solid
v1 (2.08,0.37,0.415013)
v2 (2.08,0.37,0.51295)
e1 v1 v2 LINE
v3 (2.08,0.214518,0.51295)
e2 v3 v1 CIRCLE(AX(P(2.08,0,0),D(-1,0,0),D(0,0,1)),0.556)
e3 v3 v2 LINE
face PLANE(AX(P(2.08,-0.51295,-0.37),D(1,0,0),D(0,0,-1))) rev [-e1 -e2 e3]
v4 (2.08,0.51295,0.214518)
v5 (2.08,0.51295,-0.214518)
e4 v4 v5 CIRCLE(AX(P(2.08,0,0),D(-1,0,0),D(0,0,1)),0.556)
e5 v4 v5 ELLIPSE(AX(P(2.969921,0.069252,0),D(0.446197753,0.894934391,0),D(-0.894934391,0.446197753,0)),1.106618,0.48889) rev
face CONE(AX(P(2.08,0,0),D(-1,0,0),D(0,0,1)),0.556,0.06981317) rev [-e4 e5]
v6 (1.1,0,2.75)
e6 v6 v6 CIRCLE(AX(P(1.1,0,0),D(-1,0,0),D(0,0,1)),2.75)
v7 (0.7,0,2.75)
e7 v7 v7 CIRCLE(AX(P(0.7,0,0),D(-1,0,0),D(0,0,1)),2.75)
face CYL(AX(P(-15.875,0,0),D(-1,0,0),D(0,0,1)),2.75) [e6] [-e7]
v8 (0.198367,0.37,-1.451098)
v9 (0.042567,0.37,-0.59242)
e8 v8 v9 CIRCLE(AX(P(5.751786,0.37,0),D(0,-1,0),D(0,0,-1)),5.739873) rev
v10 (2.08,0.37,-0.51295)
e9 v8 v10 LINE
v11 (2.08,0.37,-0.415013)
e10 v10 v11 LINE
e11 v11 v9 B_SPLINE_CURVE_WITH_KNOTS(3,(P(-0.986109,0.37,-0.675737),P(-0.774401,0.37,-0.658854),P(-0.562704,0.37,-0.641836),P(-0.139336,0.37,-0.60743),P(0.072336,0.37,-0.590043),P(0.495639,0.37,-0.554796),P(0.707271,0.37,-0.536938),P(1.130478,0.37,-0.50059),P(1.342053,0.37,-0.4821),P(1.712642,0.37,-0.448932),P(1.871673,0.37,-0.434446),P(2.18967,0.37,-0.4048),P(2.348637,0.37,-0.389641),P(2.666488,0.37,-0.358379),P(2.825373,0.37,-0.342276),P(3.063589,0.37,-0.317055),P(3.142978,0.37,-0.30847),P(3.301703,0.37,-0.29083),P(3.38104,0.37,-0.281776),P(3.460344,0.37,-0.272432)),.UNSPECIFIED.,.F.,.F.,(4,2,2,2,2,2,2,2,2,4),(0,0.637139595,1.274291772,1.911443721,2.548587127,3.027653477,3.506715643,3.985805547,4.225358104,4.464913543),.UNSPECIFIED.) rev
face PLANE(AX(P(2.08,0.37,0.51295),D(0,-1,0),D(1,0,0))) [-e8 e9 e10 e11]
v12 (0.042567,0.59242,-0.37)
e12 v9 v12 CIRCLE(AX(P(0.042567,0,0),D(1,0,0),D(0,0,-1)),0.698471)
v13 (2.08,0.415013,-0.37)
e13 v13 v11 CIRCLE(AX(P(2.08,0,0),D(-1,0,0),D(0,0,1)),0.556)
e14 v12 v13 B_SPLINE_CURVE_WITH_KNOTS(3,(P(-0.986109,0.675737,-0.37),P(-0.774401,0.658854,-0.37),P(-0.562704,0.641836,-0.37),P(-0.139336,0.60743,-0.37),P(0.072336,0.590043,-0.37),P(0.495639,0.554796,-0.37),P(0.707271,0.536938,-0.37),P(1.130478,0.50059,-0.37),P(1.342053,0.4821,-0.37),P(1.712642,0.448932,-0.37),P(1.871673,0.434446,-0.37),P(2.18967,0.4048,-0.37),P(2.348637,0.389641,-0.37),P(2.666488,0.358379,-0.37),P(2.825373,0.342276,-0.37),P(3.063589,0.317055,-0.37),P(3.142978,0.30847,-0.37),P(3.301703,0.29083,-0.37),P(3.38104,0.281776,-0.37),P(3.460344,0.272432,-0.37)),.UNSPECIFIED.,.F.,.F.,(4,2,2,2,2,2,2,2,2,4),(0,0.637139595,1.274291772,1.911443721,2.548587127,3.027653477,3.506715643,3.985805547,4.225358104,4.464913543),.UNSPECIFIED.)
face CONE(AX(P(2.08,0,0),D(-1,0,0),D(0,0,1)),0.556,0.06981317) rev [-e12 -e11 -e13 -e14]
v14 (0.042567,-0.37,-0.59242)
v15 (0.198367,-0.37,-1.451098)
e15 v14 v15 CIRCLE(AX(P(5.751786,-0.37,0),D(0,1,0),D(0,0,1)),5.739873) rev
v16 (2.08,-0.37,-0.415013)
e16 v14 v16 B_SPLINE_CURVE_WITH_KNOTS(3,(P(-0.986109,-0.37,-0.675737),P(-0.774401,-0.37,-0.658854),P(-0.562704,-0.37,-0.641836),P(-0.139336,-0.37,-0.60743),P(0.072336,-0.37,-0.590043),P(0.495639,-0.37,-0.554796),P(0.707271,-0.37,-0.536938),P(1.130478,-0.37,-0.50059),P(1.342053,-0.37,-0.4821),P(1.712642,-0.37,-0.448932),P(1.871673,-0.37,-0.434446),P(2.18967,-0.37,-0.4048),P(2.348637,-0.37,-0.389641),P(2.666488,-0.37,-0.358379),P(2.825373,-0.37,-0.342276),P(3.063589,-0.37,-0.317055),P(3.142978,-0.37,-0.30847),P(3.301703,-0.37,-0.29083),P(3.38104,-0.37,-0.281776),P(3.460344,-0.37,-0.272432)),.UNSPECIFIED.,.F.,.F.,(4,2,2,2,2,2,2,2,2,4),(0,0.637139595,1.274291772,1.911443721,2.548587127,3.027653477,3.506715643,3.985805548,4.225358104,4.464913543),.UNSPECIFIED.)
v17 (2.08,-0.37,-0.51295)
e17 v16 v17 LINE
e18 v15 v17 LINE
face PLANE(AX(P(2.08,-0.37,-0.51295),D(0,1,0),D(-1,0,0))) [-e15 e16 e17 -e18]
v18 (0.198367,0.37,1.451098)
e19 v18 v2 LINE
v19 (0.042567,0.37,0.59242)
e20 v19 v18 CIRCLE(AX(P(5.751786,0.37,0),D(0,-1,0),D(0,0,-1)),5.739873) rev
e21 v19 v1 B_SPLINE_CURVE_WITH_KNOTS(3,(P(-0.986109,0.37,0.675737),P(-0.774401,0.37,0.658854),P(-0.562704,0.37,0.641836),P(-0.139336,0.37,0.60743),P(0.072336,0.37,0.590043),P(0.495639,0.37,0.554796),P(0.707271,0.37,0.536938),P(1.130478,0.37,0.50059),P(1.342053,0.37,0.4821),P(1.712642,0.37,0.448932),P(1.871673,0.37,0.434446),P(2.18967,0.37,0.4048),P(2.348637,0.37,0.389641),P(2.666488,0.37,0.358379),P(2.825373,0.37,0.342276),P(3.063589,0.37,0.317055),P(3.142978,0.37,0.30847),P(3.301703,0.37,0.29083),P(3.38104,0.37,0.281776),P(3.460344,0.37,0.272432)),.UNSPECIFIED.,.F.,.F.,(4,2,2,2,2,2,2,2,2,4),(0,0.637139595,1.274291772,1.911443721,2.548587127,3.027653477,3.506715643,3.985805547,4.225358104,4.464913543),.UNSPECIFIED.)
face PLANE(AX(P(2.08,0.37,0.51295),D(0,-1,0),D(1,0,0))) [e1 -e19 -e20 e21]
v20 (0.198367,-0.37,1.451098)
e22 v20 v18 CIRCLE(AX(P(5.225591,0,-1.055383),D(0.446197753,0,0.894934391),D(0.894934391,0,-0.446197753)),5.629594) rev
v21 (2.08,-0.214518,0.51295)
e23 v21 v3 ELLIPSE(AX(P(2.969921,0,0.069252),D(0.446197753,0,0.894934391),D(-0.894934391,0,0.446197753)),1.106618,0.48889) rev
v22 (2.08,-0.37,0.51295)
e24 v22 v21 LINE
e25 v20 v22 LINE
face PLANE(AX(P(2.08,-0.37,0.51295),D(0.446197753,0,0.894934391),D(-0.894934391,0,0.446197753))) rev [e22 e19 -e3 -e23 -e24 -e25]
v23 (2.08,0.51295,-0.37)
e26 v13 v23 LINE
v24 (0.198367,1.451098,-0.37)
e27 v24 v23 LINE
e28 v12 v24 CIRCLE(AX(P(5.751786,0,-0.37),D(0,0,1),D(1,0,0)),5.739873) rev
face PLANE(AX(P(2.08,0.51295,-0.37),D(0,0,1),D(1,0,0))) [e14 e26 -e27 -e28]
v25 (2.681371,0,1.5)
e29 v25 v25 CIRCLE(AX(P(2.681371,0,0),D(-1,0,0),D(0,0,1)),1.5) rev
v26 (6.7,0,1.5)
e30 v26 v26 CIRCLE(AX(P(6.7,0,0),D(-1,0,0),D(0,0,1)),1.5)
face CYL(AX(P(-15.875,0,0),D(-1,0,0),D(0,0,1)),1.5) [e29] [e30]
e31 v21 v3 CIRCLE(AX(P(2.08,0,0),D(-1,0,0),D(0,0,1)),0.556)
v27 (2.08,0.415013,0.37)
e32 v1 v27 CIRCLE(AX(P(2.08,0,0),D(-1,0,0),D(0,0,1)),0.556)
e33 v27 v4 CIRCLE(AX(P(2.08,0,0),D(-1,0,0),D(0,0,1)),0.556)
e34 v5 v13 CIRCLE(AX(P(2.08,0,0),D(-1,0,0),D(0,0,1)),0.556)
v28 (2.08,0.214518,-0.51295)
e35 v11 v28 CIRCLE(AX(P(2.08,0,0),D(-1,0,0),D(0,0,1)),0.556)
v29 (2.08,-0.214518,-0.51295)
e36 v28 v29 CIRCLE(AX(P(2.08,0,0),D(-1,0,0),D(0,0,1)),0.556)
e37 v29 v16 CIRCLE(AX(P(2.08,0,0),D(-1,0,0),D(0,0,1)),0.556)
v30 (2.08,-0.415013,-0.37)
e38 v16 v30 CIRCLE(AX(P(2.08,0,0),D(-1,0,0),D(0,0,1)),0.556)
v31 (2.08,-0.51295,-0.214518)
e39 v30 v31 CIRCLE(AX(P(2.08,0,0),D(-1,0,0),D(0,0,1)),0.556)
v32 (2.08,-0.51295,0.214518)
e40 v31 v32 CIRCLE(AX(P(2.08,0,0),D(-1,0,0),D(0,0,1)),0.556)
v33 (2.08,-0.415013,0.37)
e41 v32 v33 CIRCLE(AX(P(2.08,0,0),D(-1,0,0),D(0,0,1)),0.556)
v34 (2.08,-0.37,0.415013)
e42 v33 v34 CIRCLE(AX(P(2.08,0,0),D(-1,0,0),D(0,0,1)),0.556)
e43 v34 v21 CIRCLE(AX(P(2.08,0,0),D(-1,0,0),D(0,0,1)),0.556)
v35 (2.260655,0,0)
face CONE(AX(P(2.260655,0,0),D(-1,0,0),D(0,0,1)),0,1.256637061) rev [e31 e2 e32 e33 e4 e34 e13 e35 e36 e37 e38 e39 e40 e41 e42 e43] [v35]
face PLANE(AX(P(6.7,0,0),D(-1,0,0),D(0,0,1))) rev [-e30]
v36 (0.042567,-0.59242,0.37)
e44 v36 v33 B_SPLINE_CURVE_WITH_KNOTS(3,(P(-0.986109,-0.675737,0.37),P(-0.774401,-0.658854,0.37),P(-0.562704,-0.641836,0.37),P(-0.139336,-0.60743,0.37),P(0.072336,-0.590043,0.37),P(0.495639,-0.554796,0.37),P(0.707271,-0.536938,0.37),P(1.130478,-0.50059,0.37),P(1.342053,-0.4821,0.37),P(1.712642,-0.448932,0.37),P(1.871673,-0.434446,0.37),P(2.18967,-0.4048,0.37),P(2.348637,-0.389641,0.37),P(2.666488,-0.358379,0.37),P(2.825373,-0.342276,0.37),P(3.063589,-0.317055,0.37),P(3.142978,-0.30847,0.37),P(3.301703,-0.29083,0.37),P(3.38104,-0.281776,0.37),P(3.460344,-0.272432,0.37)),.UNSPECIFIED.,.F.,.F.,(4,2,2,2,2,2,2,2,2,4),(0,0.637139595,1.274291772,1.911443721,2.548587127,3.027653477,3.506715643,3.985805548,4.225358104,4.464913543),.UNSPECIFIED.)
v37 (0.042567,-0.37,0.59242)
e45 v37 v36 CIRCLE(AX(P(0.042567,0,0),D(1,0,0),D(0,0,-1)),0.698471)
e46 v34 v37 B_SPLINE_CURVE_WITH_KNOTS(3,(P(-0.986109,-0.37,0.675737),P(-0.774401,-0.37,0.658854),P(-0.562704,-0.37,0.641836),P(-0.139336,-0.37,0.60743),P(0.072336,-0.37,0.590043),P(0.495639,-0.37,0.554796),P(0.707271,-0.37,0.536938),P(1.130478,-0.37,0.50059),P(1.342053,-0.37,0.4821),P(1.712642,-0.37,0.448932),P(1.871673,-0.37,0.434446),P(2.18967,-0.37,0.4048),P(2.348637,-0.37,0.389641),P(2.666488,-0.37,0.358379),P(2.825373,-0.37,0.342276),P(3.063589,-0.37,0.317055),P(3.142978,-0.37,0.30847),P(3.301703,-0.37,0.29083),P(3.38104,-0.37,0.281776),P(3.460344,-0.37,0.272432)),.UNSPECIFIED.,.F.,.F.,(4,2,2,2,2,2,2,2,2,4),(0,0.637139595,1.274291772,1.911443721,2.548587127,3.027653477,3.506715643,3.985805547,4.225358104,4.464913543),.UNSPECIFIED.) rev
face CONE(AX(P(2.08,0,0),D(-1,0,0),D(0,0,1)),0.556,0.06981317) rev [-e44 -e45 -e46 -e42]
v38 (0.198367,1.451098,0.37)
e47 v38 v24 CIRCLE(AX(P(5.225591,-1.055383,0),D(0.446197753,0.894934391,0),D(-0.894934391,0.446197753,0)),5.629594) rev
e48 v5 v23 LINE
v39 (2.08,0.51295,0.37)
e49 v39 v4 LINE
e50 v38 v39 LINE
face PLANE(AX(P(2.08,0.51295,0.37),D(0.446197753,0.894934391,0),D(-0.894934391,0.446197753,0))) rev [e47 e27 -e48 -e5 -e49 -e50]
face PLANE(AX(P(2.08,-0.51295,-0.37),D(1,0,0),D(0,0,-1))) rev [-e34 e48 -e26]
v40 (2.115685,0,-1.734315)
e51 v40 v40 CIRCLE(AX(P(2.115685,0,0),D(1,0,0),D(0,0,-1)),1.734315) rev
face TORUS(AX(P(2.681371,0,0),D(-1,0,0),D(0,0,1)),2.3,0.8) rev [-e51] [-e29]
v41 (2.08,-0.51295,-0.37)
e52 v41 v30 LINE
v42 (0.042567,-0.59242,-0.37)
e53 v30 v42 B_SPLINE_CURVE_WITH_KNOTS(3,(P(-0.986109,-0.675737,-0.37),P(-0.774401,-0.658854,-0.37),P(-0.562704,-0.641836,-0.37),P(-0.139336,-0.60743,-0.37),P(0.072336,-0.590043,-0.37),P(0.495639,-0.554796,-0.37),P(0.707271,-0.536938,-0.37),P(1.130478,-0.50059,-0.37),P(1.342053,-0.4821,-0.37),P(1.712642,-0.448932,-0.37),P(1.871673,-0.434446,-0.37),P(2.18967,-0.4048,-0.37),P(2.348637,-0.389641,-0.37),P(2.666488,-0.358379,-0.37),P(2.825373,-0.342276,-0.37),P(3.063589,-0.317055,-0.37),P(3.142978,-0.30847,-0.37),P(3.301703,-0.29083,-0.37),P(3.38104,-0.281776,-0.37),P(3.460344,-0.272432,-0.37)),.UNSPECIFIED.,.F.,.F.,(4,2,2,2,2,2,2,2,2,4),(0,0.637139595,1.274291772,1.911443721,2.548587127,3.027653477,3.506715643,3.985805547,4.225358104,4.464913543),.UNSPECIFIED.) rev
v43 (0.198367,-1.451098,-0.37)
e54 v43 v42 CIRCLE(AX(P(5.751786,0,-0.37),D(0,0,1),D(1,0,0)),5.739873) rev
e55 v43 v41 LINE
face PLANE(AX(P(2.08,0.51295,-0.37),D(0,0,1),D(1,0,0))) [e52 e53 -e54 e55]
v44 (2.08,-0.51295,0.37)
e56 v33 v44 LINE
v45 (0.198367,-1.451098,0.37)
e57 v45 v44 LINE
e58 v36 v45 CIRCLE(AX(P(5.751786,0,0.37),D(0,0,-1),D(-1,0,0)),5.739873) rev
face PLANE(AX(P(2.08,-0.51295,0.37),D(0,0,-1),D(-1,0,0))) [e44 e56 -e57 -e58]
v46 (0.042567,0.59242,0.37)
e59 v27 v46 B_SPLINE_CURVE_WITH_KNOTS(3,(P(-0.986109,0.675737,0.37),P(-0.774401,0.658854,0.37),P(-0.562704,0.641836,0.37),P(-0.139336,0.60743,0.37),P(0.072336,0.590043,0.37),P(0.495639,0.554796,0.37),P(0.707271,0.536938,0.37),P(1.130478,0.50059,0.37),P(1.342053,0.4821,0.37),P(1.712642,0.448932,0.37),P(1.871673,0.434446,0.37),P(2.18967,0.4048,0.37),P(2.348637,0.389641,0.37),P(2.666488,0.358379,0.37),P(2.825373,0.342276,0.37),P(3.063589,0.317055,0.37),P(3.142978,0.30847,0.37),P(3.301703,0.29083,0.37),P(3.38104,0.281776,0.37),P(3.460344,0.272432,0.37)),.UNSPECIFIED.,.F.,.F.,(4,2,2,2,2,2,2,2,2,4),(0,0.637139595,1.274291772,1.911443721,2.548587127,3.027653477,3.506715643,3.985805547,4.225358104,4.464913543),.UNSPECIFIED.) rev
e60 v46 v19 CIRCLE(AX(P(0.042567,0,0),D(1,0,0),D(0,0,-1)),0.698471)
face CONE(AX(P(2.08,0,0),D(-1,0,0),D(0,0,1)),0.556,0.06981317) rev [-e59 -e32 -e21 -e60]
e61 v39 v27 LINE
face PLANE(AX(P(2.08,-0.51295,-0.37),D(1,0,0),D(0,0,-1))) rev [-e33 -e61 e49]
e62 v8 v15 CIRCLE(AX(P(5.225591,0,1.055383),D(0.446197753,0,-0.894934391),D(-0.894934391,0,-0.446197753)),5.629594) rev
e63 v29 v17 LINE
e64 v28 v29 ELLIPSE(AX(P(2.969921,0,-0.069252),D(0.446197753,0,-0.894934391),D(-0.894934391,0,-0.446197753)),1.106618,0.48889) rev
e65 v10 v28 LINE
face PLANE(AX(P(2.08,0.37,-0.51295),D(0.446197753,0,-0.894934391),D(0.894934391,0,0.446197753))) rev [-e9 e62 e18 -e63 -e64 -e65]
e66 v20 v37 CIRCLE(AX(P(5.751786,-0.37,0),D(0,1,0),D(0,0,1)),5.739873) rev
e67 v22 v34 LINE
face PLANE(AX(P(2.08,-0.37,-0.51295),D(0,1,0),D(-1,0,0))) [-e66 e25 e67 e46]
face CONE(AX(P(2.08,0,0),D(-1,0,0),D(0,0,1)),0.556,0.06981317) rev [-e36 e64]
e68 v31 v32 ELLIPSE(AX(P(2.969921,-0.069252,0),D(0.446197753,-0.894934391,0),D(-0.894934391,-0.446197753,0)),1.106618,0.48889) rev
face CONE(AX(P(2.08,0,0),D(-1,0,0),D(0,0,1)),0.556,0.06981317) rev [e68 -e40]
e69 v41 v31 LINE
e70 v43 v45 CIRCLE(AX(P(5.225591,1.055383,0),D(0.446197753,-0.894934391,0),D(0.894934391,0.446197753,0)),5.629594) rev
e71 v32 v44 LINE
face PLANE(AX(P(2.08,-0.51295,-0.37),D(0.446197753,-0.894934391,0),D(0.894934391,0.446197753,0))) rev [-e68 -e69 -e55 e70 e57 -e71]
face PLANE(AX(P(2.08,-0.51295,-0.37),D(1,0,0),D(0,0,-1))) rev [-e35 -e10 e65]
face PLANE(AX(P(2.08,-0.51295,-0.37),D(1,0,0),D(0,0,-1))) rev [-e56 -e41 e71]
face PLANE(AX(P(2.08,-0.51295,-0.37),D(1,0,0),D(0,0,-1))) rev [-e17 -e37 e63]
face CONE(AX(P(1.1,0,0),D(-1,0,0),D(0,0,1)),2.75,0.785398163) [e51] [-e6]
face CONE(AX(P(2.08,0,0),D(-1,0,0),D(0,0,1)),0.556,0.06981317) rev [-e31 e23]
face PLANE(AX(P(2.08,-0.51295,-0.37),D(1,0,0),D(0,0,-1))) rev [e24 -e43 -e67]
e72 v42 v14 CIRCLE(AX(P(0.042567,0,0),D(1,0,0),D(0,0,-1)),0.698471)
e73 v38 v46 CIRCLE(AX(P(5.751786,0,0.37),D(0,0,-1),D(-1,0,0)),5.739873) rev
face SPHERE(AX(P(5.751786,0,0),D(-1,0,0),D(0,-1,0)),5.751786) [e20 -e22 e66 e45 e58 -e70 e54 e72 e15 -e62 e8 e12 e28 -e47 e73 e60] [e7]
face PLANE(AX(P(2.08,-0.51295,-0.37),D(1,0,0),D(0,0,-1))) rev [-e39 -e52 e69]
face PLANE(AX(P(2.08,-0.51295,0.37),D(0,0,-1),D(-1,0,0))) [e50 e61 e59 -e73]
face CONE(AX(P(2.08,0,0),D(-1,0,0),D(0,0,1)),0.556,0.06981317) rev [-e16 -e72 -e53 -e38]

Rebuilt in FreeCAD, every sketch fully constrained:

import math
import FreeCAD as App
import Part
import Sketcher
Q = App.Units.Quantity


def edges_at(feature, points):
    """Names of the edges that pass closest to the given points."""
    edges = feature.Shape.Edges
    near = lambda p: min(range(len(edges)), key=lambda i: edges[i].distToShape(Part.Vertex(*p))[0])
    return sorted({f"Edge{near(p) + 1}" for p in points})

doc = App.newDocument("Part")
params = doc.addObject("Spreadsheet::Sheet", "Params")
for row, (alias, value) in enumerate([
    ("sketch1_width", "6.7 mm"),
    ("sketch1_width2", "0.4 mm"),
    ("sketch1_height", "1.5 mm"),
    ("sketch1_width3", "4.35 mm"),
    ("revolution_angle", "360 deg"),
    ("fillet_radius", "0.8 mm"),
    ("sketch2_width", "3.1 mm"),
    ("sketch2_height", "0.74 mm"),
    ("sketch3_height", "0.74 mm"),
    ("groove_angle", "360 deg"),
], start=1):
    params.set(f"A{row}", alias)
    params.set(f"B{row}", "=" + value)
    params.setAlias(f"B{row}", alias)

body = doc.addObject("PartDesign::Body", "Body")

sketch1 = doc.addObject("Sketcher::SketchObject", "Sketch")
body.addObject(sketch1)
sketch1.AttachmentSupport = (doc.XY_Plane, [""])
sketch1.MapMode = "FlatFace"
sketch1.addGeometry([
    Part.LineSegment(App.Vector(0, 0, 0), App.Vector(6.7, 0, 0)),
    Part.LineSegment(App.Vector(6.7, 0, 0), App.Vector(6.7, 1.5, 0)),
    Part.LineSegment(App.Vector(6.7, 1.5, 0), App.Vector(2.35, 1.5, 0)),
    Part.LineSegment(App.Vector(2.35, 1.5, 0), App.Vector(1.1, 2.75, 0)),
    Part.LineSegment(App.Vector(1.1, 2.75, 0), App.Vector(0.7, 2.75, 0)),
    Part.ArcOfCircle(Part.Circle(App.Vector(5.751786, 0, 0), App.Vector(0, 0, 1), 5.751786), math.radians(151.437809), math.radians(180)),
], False)
sketch1.addConstraint([
    Sketcher.Constraint("Coincident", 0, 2, 1, 1),
    Sketcher.Constraint("Coincident", 1, 2, 2, 1),
    Sketcher.Constraint("Coincident", 2, 2, 3, 1),
    Sketcher.Constraint("Coincident", 3, 2, 4, 1),
    Sketcher.Constraint("Coincident", 4, 2, 5, 1),
    Sketcher.Constraint("Coincident", 5, 2, 0, 1),
    Sketcher.Constraint("Horizontal", 0),
    Sketcher.Constraint("Vertical", 1),
    Sketcher.Constraint("Horizontal", 2),
    Sketcher.Constraint("Horizontal", 4),
    Sketcher.Constraint("Coincident", 5, 2, -1, 1),
    Sketcher.Constraint("PointOnObject", 5, 3, -1),
    Sketcher.Constraint("Angle", 3, Q("135 deg")),
    Sketcher.Constraint("DistanceX", 0, 1, 0, 2, 6.7),
    Sketcher.Constraint("DistanceX", 4, 2, 4, 1, 0.4),
    Sketcher.Constraint("DistanceY", 1, 1, 1, 2, 1.5),
    Sketcher.Constraint("DistanceX", 4, 2, 1, 2, 6.0),
    Sketcher.Constraint("DistanceX", 2, 2, 2, 1, 4.35),
])
sketch1.setExpression("Constraints[13]", "Params.sketch1_width")
sketch1.setExpression("Constraints[14]", "Params.sketch1_width2")
sketch1.setExpression("Constraints[15]", "Params.sketch1_height")
sketch1.setExpression("Constraints[17]", "Params.sketch1_width3")
revolution = doc.addObject("PartDesign::Revolution", "Revolution")
body.addObject(revolution)
revolution.Profile = sketch1
revolution.ReferenceAxis = (sketch1, ["H_Axis"])
revolution.setExpression("Angle", "Params.revolution_angle")
doc.recompute()

fillet = doc.addObject("PartDesign::Fillet", "Fillet")
body.addObject(fillet)
fillet.Base = (revolution, edges_at(revolution, [(2.35, 0, -1.5)]))
fillet.setExpression("Radius", "Params.fillet_radius")

sketch2 = doc.addObject("Sketcher::SketchObject", "Sketch001")
body.addObject(sketch2)
sketch2.AttachmentSupport = (doc.YZ_Plane, [""])
sketch2.MapMode = "FlatFace"
sketch2.addGeometry([
    Part.LineSegment(App.Vector(-1.55, 0.37, 0), App.Vector(-1.55, -0.37, 0)),
    Part.LineSegment(App.Vector(-1.55, -0.37, 0), App.Vector(1.55, -0.37, 0)),
    Part.LineSegment(App.Vector(1.55, -0.37, 0), App.Vector(1.55, 0.37, 0)),
    Part.LineSegment(App.Vector(1.55, 0.37, 0), App.Vector(-1.55, 0.37, 0)),
], False)
sketch2.addConstraint([
    Sketcher.Constraint("Coincident", 0, 2, 1, 1),
    Sketcher.Constraint("Coincident", 1, 2, 2, 1),
    Sketcher.Constraint("Coincident", 2, 2, 3, 1),
    Sketcher.Constraint("Coincident", 3, 2, 0, 1),
    Sketcher.Constraint("Vertical", 0),
    Sketcher.Constraint("Horizontal", 1),
    Sketcher.Constraint("Vertical", 2),
    Sketcher.Constraint("Horizontal", 3),
    Sketcher.Constraint("Symmetric", 0, 2, 2, 2, -1, 1),
    Sketcher.Constraint("DistanceX", 1, 1, 1, 2, 3.1),
    Sketcher.Constraint("DistanceY", 0, 2, 0, 1, 0.74),
])
sketch2.setExpression("Constraints[9]", "Params.sketch2_width")
sketch2.setExpression("Constraints[10]", "Params.sketch2_height")

sketch3 = doc.addObject("Sketcher::SketchObject", "Sketch002")
body.addObject(sketch3)
sketch3.AttachmentSupport = (doc.YZ_Plane, [""])
sketch3.MapMode = "FlatFace"
sketch3.AttachmentOffset = App.Placement(App.Vector(0, 0, 2.08), App.Rotation())
sketch3.addGeometry([
    Part.LineSegment(App.Vector(-0.51295, 0.37, 0), App.Vector(-0.51295, -0.37, 0)),
    Part.LineSegment(App.Vector(-0.51295, -0.37, 0), App.Vector(0.51295, -0.37, 0)),
    Part.LineSegment(App.Vector(0.51295, -0.37, 0), App.Vector(0.51295, 0.37, 0)),
    Part.LineSegment(App.Vector(0.51295, 0.37, 0), App.Vector(-0.51295, 0.37, 0)),
], False)
sketch3.addConstraint([
    Sketcher.Constraint("Coincident", 0, 2, 1, 1),
    Sketcher.Constraint("Coincident", 1, 2, 2, 1),
    Sketcher.Constraint("Coincident", 2, 2, 3, 1),
    Sketcher.Constraint("Coincident", 3, 2, 0, 1),
    Sketcher.Constraint("Vertical", 0),
    Sketcher.Constraint("Horizontal", 1),
    Sketcher.Constraint("Vertical", 2),
    Sketcher.Constraint("Horizontal", 3),
    Sketcher.Constraint("Symmetric", 0, 2, 2, 2, -1, 1),
    Sketcher.Constraint("DistanceY", 0, 2, 0, 1, 0.74),
    Sketcher.Constraint("DistanceX", 1, 1, 1, 2, 1.025901),
])
sketch3.setExpression("Constraints[9]", "Params.sketch3_height")

subtractiveloft = doc.addObject("PartDesign::SubtractiveLoft", "SubtractiveLoft")
body.addObject(subtractiveloft)
subtractiveloft.Profile = sketch2
subtractiveloft.Sections = [sketch3]
doc.recompute()

polarpattern = doc.addObject("PartDesign::PolarPattern", "PolarPattern")
body.addObject(polarpattern)
polarpattern.Originals = [subtractiveloft]
polarpattern.Axis = (doc.X_Axis, [""])
polarpattern.Angle = 90
polarpattern.Occurrences = 2
body.Tip = polarpattern

sketch4 = doc.addObject("Sketcher::SketchObject", "Sketch003")
body.addObject(sketch4)
sketch4.AttachmentSupport = (doc.XY_Plane, [""])
sketch4.MapMode = "FlatFace"
sketch4.addGeometry([
    Part.LineSegment(App.Vector(0, 0.701448, 0), App.Vector(0, 0, 0)),
    Part.LineSegment(App.Vector(0, 0, 0), App.Vector(2.260655, 0, 0)),
    Part.LineSegment(App.Vector(2.260655, 0, 0), App.Vector(2.08, 0.556, 0)),
    Part.LineSegment(App.Vector(2.08, 0.556, 0), App.Vector(0, 0.701448, 0)),
], False)
sketch4.addConstraint([
    Sketcher.Constraint("Coincident", 0, 2, 1, 1),
    Sketcher.Constraint("Coincident", 1, 2, 2, 1),
    Sketcher.Constraint("Coincident", 2, 2, 3, 1),
    Sketcher.Constraint("Coincident", 3, 2, 0, 1),
    Sketcher.Constraint("Vertical", 0),
    Sketcher.Constraint("Horizontal", 1),
    Sketcher.Constraint("Coincident", 0, 2, -1, 1),
    Sketcher.Constraint("Angle", 2, Q("108 deg")),
    Sketcher.Constraint("Angle", 3, Q("176 deg")),
    Sketcher.Constraint("DistanceX", -1, 1, 2, 2, 2.08),
    Sketcher.Constraint("DistanceY", -1, 1, 2, 2, 0.556),
])
groove = doc.addObject("PartDesign::Groove", "Groove")
body.addObject(groove)
groove.Profile = sketch4
groove.ReferenceAxis = (sketch4, ["H_Axis"])
groove.setExpression("Angle", "Params.groove_angle")

doc.recompute()
